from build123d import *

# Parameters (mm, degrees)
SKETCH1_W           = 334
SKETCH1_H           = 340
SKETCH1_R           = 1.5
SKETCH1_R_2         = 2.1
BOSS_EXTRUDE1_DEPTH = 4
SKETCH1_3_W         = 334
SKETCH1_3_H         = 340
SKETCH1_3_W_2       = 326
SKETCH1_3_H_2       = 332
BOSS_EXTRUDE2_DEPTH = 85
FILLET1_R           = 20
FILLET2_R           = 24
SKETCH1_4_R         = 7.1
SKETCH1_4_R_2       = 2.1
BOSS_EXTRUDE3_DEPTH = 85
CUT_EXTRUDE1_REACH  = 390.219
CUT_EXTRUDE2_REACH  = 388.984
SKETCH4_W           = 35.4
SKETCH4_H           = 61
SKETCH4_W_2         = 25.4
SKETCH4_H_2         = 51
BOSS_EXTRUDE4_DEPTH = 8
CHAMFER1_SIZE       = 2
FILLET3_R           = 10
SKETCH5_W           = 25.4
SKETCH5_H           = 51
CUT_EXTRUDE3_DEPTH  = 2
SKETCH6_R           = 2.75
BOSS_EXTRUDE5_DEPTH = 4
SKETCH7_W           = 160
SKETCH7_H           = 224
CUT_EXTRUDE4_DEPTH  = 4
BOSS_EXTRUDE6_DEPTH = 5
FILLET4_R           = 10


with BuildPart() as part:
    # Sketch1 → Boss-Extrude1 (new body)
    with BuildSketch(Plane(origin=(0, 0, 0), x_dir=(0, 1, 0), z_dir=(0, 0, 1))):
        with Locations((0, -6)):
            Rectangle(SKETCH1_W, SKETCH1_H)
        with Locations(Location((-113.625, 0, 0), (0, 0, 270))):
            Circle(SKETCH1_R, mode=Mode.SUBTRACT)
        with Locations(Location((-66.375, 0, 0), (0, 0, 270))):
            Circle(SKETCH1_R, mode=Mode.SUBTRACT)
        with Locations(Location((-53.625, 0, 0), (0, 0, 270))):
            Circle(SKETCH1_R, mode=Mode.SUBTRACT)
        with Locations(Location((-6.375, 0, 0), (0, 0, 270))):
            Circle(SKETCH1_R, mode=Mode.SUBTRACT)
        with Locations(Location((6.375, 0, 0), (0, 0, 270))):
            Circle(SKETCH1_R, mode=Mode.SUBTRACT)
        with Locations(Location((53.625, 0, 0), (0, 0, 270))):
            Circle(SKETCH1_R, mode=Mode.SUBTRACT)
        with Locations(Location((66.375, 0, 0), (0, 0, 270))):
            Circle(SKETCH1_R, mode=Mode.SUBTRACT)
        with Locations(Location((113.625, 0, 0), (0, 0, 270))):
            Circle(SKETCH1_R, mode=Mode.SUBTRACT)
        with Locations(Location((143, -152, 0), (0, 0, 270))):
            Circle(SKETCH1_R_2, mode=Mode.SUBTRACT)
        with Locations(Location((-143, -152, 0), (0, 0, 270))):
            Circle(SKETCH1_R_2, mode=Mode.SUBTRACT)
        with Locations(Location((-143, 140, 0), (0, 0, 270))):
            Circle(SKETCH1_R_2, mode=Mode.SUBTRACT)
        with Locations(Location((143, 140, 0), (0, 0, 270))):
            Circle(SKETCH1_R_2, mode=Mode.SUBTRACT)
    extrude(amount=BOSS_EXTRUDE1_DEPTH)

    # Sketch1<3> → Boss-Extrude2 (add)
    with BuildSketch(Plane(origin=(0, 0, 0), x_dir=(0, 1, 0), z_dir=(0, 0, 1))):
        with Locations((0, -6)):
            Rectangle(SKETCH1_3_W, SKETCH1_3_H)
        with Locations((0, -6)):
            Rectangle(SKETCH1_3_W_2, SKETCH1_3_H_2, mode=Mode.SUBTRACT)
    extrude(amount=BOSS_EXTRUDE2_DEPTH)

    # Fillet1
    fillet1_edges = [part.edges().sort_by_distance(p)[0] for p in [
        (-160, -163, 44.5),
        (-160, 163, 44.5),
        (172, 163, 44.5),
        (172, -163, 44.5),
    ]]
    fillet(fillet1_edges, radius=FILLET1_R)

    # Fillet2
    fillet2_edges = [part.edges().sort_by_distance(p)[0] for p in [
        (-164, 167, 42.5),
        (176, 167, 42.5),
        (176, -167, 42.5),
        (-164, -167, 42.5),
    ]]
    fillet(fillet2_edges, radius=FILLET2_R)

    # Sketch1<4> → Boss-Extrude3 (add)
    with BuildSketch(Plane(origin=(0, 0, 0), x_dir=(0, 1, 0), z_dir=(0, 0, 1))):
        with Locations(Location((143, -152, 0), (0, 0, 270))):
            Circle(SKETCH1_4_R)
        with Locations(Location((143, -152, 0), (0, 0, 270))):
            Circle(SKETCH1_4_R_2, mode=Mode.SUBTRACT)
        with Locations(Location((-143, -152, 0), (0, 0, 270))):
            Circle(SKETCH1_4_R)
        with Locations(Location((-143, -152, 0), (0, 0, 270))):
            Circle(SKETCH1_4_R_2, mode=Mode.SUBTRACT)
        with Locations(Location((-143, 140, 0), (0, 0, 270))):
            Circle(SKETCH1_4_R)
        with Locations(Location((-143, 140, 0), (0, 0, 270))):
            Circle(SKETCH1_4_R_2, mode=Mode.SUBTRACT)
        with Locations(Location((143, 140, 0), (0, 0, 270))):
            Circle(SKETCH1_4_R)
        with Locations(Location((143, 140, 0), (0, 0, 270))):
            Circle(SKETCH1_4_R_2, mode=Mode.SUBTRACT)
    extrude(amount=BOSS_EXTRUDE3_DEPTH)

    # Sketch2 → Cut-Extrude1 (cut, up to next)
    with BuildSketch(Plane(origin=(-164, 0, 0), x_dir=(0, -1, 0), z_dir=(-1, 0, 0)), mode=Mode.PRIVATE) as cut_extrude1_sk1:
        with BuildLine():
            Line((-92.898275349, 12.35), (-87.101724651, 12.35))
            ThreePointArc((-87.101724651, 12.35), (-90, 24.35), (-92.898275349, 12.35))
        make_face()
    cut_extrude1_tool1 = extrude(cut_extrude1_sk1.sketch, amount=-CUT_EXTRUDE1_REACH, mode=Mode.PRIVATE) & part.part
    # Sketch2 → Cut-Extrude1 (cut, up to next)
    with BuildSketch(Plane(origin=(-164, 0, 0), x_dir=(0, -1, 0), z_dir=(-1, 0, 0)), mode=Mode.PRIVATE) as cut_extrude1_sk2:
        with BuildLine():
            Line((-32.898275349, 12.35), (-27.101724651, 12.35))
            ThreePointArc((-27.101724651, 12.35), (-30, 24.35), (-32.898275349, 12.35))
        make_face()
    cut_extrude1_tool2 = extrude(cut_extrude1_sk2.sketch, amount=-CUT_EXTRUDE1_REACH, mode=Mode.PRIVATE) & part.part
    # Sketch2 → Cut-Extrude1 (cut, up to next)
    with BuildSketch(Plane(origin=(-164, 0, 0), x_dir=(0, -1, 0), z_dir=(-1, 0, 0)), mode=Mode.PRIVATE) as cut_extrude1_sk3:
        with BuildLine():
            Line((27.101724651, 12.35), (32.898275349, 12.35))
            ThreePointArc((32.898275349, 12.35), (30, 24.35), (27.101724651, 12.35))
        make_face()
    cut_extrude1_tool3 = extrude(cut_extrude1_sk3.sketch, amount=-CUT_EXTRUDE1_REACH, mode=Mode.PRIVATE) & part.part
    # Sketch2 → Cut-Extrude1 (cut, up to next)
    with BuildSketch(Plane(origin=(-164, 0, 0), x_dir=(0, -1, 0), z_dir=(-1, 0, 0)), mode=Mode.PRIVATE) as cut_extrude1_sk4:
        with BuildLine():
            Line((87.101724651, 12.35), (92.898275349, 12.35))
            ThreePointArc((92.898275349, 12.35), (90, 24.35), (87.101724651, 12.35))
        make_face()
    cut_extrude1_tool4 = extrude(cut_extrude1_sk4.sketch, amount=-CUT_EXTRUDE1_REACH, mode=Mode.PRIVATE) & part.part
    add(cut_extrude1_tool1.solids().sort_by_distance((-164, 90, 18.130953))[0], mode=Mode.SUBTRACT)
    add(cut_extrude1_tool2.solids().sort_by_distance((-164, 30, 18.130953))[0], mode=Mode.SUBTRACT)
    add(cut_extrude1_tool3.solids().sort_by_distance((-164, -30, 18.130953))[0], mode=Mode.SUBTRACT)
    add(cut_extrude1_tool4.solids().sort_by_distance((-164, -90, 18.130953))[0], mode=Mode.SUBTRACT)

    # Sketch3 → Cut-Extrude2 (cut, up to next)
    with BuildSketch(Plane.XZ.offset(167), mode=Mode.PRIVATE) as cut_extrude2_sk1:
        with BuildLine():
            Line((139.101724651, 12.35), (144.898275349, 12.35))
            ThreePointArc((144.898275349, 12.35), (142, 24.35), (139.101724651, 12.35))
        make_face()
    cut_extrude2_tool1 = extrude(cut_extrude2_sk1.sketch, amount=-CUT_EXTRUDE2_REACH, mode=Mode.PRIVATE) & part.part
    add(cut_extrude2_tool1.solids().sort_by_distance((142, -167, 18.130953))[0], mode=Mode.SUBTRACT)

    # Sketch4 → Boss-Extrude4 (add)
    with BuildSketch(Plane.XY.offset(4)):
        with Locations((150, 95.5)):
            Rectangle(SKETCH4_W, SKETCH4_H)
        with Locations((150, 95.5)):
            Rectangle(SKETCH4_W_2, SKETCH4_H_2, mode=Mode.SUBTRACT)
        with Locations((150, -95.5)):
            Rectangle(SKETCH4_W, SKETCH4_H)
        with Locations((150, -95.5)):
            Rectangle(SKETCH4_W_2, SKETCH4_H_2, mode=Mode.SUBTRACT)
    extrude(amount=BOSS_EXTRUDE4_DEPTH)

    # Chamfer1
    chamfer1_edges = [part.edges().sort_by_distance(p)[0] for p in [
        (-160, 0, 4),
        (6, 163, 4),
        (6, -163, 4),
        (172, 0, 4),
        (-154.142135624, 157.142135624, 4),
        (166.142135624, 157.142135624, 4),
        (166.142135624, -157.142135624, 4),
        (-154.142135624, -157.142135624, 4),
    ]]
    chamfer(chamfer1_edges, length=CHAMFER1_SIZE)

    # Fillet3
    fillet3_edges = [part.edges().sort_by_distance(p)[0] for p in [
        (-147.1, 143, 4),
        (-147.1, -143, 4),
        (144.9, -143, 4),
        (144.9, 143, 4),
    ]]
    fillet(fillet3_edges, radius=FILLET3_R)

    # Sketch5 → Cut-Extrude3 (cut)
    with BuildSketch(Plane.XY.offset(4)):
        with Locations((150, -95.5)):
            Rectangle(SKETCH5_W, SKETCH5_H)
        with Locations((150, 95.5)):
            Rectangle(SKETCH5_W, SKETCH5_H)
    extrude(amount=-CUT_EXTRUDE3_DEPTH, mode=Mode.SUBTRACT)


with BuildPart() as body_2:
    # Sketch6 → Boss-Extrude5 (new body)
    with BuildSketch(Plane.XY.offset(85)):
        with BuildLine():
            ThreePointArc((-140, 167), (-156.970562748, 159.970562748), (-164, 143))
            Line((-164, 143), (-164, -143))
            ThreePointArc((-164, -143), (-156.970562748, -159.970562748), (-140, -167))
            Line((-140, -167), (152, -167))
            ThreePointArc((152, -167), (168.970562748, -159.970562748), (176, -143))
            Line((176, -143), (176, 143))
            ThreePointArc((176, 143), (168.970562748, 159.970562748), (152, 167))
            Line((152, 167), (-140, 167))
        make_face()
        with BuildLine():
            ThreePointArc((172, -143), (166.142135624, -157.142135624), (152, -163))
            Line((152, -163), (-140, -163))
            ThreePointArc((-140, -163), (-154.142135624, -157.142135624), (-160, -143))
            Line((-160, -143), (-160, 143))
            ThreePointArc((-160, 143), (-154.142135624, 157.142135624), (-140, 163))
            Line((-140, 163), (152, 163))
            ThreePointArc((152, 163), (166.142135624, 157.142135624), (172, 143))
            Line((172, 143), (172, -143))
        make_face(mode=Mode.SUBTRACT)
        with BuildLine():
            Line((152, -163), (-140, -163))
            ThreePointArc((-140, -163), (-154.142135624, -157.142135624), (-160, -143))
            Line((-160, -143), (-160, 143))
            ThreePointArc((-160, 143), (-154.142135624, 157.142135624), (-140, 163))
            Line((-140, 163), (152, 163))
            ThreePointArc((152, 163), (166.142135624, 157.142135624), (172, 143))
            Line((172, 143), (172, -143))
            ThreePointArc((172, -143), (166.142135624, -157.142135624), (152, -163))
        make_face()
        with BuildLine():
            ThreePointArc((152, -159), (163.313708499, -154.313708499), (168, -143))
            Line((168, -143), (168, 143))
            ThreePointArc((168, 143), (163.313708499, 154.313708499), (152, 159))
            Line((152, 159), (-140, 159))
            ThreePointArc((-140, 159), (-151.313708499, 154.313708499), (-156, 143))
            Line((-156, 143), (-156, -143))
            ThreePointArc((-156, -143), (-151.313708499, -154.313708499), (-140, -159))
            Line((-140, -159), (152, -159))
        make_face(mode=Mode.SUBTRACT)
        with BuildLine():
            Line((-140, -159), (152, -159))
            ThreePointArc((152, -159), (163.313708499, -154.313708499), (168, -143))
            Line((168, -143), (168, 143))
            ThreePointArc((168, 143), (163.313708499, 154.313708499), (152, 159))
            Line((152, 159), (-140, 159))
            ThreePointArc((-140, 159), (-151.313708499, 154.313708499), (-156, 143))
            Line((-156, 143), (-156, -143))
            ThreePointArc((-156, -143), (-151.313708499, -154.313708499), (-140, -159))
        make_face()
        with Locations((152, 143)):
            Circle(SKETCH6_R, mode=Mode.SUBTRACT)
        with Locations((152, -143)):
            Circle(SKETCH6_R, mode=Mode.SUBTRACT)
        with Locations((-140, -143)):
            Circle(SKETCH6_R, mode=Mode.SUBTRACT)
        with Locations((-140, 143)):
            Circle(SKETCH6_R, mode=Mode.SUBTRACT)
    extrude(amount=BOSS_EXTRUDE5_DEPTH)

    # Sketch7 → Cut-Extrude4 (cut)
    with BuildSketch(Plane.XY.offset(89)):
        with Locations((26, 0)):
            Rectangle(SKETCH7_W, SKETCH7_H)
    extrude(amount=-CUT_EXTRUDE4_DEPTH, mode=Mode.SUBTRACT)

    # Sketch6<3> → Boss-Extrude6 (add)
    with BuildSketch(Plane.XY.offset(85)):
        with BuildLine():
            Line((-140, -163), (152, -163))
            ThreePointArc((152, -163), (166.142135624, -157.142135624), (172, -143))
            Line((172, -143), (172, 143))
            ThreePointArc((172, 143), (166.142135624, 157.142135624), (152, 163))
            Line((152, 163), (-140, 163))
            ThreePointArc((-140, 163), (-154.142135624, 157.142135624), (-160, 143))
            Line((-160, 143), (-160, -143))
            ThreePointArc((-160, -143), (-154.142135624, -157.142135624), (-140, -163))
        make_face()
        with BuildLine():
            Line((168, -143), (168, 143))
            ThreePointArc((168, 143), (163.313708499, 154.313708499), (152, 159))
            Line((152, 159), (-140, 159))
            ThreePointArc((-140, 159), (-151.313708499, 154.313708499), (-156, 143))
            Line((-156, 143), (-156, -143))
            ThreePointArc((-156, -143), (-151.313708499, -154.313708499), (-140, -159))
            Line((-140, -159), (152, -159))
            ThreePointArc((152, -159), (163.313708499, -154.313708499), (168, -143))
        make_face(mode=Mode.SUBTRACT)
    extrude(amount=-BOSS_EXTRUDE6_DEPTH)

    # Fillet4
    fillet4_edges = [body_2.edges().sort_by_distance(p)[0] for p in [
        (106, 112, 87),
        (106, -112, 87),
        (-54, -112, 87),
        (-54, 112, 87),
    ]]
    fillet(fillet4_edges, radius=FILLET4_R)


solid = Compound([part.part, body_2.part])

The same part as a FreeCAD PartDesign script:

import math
import FreeCAD as App
import Part
import Sketcher


def edges_at(feature, points):
    """Names of the edges that pass closest to the given points."""
    edges = feature.Shape.Edges
    near = lambda p: min(range(len(edges)), key=lambda i: edges[i].distToShape(Part.Vertex(*p))[0])
    return sorted({f"Edge{near(p) + 1}" for p in points})


def add_polygon(sketch, points):
    """Adds a closed chain of lines whose ends are joined by coincident constraints."""
    first, n = sketch.GeometryCount, len(points)
    for a, b in zip(points, points[1:] + points[:1]):
        sketch.addGeometry(Part.LineSegment(App.Vector(*a, 0), App.Vector(*b, 0)), False)
    for i in range(n):
        sketch.addConstraint(Sketcher.Constraint("Coincident", first + i, 2, first + (i + 1) % n, 1))

doc = App.newDocument("Part")
body = doc.addObject("PartDesign::Body", "Body")

sketch1 = body.newObject("Sketcher::SketchObject", "Sketch")
sketch1.AttachmentSupport = (doc.getObject("XY_Plane"), [""])
sketch1.MapMode = "FlatFace"
add_polygon(sketch1, [(-164, -167), (176, -167), (176, 167), (-164, 167)])
sketch1.addGeometry(Part.Circle(App.Vector(152, -143, 0), App.Vector(0, 0, 1), 2.1), False)
sketch1.addGeometry(Part.Circle(App.Vector(152, 143, 0), App.Vector(0, 0, 1), 2.1), False)
sketch1.addGeometry(Part.Circle(App.Vector(0, -113.6, 0), App.Vector(0, 0, 1), 1.5), False)
sketch1.addGeometry(Part.Circle(App.Vector(0, -66.4, 0), App.Vector(0, 0, 1), 1.5), False)
sketch1.addGeometry(Part.Circle(App.Vector(0, -53.6, 0), App.Vector(0, 0, 1), 1.5), False)
sketch1.addGeometry(Part.Circle(App.Vector(0, -6.4, 0), App.Vector(0, 0, 1), 1.5), False)
sketch1.addGeometry(Part.Circle(App.Vector(-140, -143, 0), App.Vector(0, 0, 1), 2.1), False)
sketch1.addGeometry(Part.Circle(App.Vector(0, 6.4, 0), App.Vector(0, 0, 1), 1.5), False)
sketch1.addGeometry(Part.Circle(App.Vector(0, 53.6, 0), App.Vector(0, 0, 1), 1.5), False)
sketch1.addGeometry(Part.Circle(App.Vector(0, 66.4, 0), App.Vector(0, 0, 1), 1.5), False)
sketch1.addGeometry(Part.Circle(App.Vector(0, 113.6, 0), App.Vector(0, 0, 1), 1.5), False)
sketch1.addGeometry(Part.Circle(App.Vector(-140, 143, 0), App.Vector(0, 0, 1), 2.1), False)
sketch1.addConstraint([
    Sketcher.Constraint("Horizontal", 0),
    Sketcher.Constraint("Vertical", 1),
    Sketcher.Constraint("Horizontal", 2),
    Sketcher.Constraint("Vertical", 3),
    Sketcher.Constraint("Equal", 4, 5),
    Sketcher.Constraint("Equal", 6, 7),
    Sketcher.Constraint("Equal", 7, 8),
    Sketcher.Constraint("Equal", 8, 9),
    Sketcher.Constraint("Equal", 5, 10),
    Sketcher.Constraint("Equal", 9, 11),
    Sketcher.Constraint("Equal", 11, 12),
    Sketcher.Constraint("Equal", 12, 13),
    Sketcher.Constraint("Equal", 13, 14),
    Sketcher.Constraint("Equal", 10, 15),
    Sketcher.Constraint("Symmetric", 9, 3, 11, 3, -1, 1),
    Sketcher.Constraint("Symmetric", 8, 3, 12, 3, -1, 1),
    Sketcher.Constraint("Symmetric", 7, 3, 13, 3, -1, 1),
    Sketcher.Constraint("Symmetric", 6, 3, 14, 3, -1, 1),
    Sketcher.Constraint("Symmetric", 4, 3, 5, 3, -1),
    Sketcher.Constraint("Symmetric", 10, 3, 15, 3, -1),
    Sketcher.Constraint("PointOnObject", 6, 3, -2),
    Sketcher.Constraint("PointOnObject", 7, 3, -2),
    Sketcher.Constraint("PointOnObject", 8, 3, -2),
    Sketcher.Constraint("PointOnObject", 9, 3, -2),
    Sketcher.Constraint("Horizontal", 4, 3, 10, 3),
    Sketcher.Constraint("Diameter", 6, 3.0),
    Sketcher.Constraint("Diameter", 4, 4.2),
    Sketcher.Constraint("DistanceX", 0, 1, 0, 2, 340.0),
    Sketcher.Constraint("DistanceY", 1, 1, 1, 2, 334.0),
    Sketcher.Constraint("DistanceX", -1, 1, 4, 3, 152.0),
    Sketcher.Constraint("DistanceY", 4, 3, -1, 1, 143.0),
    Sketcher.Constraint("DistanceX", 10, 3, -1, 1, 140.0),
    Sketcher.Constraint("DistanceX", -1, 1, 0, 2, 176.0),
    Sketcher.Constraint("DistanceY", 0, 2, -1, 1, 167.0),
    Sketcher.Constraint("DistanceY", 6, 3, 8, 3, 60.0),
    Sketcher.Constraint("DistanceY", 7, 3, 9, 3, 60.0),
    Sketcher.Constraint("DistanceY", 8, 3, 11, 3, 60.0),
    Sketcher.Constraint("DistanceY", 6, 3, 7, 3, 47.25),
])
pad1 = body.newObject("PartDesign::Pad", "Pad")
pad1.Profile = sketch1
pad1.Length = 4

sketch2 = body.newObject("Sketcher::SketchObject", "Sketch001")
sketch2.AttachmentSupport = (doc.getObject("XY_Plane"), [""])
sketch2.MapMode = "FlatFace"
add_polygon(sketch2, [(-164, -167), (176, -167), (176, 167), (-164, 167)])
add_polygon(sketch2, [(172, 163), (172, -163), (-160, -163), (-160, 163)])
sketch2.addConstraint([
    Sketcher.Constraint("Horizontal", 0),
    Sketcher.Constraint("Vertical", 1),
    Sketcher.Constraint("Horizontal", 2),
    Sketcher.Constraint("Vertical", 3),
    Sketcher.Constraint("Vertical", 4),
    Sketcher.Constraint("Horizontal", 5),
    Sketcher.Constraint("Vertical", 6),
    Sketcher.Constraint("Horizontal", 7),
    Sketcher.Constraint("DistanceX", 0, 1, 0, 2, 340.0),
    Sketcher.Constraint("DistanceX", 5, 2, 5, 1, 332.0),
    Sketcher.Constraint("DistanceY", 1, 1, 1, 2, 334.0),
    Sketcher.Constraint("DistanceY", 4, 2, 4, 1, 326.0),
    Sketcher.Constraint("DistanceX", -1, 1, 0, 2, 176.0),
    Sketcher.Constraint("DistanceY", 0, 2, -1, 1, 167.0),
    Sketcher.Constraint("DistanceX", -1, 1, 4, 2, 172.0),
    Sketcher.Constraint("DistanceY", 4, 2, -1, 1, 163.0),
])
pad2 = body.newObject("PartDesign::Pad", "Pad001")
pad2.Profile = sketch2
pad2.Length = 85
doc.recompute()

fillet = body.newObject("PartDesign::Fillet", "Fillet")
fillet.Base = (pad2, edges_at(pad2, [
    (-160, -163, 44.5),
    (-160, 163, 44.5),
    (172, 163, 44.5),
    (172, -163, 44.5),
]))
fillet.Radius = 20
doc.recompute()

fillet2 = body.newObject("PartDesign::Fillet", "Fillet001")
fillet2.Base = (fillet, edges_at(fillet, [
    (-164, 167, 42.5),
    (176, 167, 42.5),
    (176, -167, 42.5),
    (-164, -167, 42.5),
]))
fillet2.Radius = 24

sketch3 = body.newObject("Sketcher::SketchObject", "Sketch002")
sketch3.AttachmentSupport = (doc.getObject("XY_Plane"), [""])
sketch3.MapMode = "FlatFace"
sketch3.addGeometry([
    Part.Circle(App.Vector(152, 143, 0), App.Vector(0, 0, 1), 7.1),
    Part.Circle(App.Vector(152, 143, 0), App.Vector(0, 0, 1), 2.1),
    Part.Circle(App.Vector(152, -143, 0), App.Vector(0, 0, 1), 7.1),
    Part.Circle(App.Vector(152, -143, 0), App.Vector(0, 0, 1), 2.1),
    Part.Circle(App.Vector(-140, -143, 0), App.Vector(0, 0, 1), 7.1),
    Part.Circle(App.Vector(-140, -143, 0), App.Vector(0, 0, 1), 2.1),
    Part.Circle(App.Vector(-140, 143, 0), App.Vector(0, 0, 1), 7.1),
    Part.Circle(App.Vector(-140, 143, 0), App.Vector(0, 0, 1), 2.1),
], False)
sketch3.addConstraint([
    Sketcher.Constraint("Coincident", 1, 3, 0, 3),
    Sketcher.Constraint("Coincident", 3, 3, 2, 3),
    Sketcher.Constraint("Coincident", 5, 3, 4, 3),
    Sketcher.Constraint("Coincident", 7, 3, 6, 3),
    Sketcher.Constraint("Equal", 0, 2),
    Sketcher.Constraint("Equal", 1, 3),
    Sketcher.Constraint("Equal", 2, 4),
    Sketcher.Constraint("Equal", 3, 5),
    Sketcher.Constraint("Equal", 4, 6),
    Sketcher.Constraint("Equal", 5, 7),
    Sketcher.Constraint("Symmetric", 0, 3, 2, 3, -1),
    Sketcher.Constraint("Symmetric", 4, 3, 6, 3, -1),
    Sketcher.Constraint("Horizontal", 3, 3, 4, 3),
    Sketcher.Constraint("Diameter", 0, 14.2),
    Sketcher.Constraint("Diameter", 1, 4.2),
    Sketcher.Constraint("DistanceX", -1, 1, 0, 3, 152.0),
    Sketcher.Constraint("DistanceY", -1, 1, 0, 3, 143.0),
    Sketcher.Constraint("DistanceX", 4, 3, -1, 1, 140.0),
])
pad3 = body.newObject("PartDesign::Pad", "Pad002")
pad3.Profile = sketch3
pad3.Length = 85

sketch4 = body.newObject("Sketcher::SketchObject", "Sketch003")
sketch4.AttachmentSupport = (doc.getObject("YZ_Plane"), [""])
sketch4.MapMode = "FlatFace"
sketch4.AttachmentOffset = App.Placement(App.Vector(0, 0, -164), App.Rotation())
sketch4.addGeometry([
    Part.LineSegment(App.Vector(93, 12, 0), App.Vector(87, 12, 0)),
    Part.ArcOfCircle(Part.Circle(App.Vector(90, 18, 0), App.Vector(0, 0, 1), 6), math.radians(-63), math.radians(243)),
], False)
sketch4.addConstraint([
    Sketcher.Constraint("Coincident", 0, 1, 1, 1),
    Sketcher.Constraint("Coincident", 1, 2, 0, 2),
    Sketcher.Constraint("Horizontal", 0),
    Sketcher.Constraint("Radius", 1, 6.35),
    Sketcher.Constraint("DistanceX", -1, 1, 1, 3, 90.0),
    Sketcher.Constraint("DistanceY", -1, 1, 1, 3, 18.0),
    Sketcher.Constraint("DistanceY", -1, 1, 0, 1, 12.35),
])
pocket1 = body.newObject("PartDesign::Pocket", "Pocket")
pocket1.Profile = sketch4
pocket1.Type = "UpToFirst"
pocket1.Reversed = True

sketch5 = body.newObject("Sketcher::SketchObject", "Sketch004")
sketch5.AttachmentSupport = (doc.getObject("YZ_Plane"), [""])
sketch5.MapMode = "FlatFace"
sketch5.AttachmentOffset = App.Placement(App.Vector(0, 0, -164), App.Rotation())
sketch5.addGeometry([
    Part.LineSegment(App.Vector(33, 12, 0), App.Vector(27, 12, 0)),
    Part.ArcOfCircle(Part.Circle(App.Vector(30, 18, 0), App.Vector(0, 0, 1), 6), math.radians(-63), math.radians(243)),
], False)
sketch5.addConstraint([
    Sketcher.Constraint("Coincident", 0, 1, 1, 1),
    Sketcher.Constraint("Coincident", 1, 2, 0, 2),
    Sketcher.Constraint("Horizontal", 0),
    Sketcher.Constraint("Radius", 1, 6.35),
    Sketcher.Constraint("DistanceX", -1, 1, 1, 3, 30.0),
    Sketcher.Constraint("DistanceY", -1, 1, 1, 3, 18.0),
    Sketcher.Constraint("DistanceY", -1, 1, 0, 1, 12.35),
])
pocket2 = body.newObject("PartDesign::Pocket", "Pocket001")
pocket2.Profile = sketch5
pocket2.Type = "UpToFirst"
pocket2.Reversed = True

sketch6 = body.newObject("Sketcher::SketchObject", "Sketch005")
sketch6.AttachmentSupport = (doc.getObject("YZ_Plane"), [""])
sketch6.MapMode = "FlatFace"
sketch6.AttachmentOffset = App.Placement(App.Vector(0, 0, -164), App.Rotation())
sketch6.addGeometry([
    Part.LineSegment(App.Vector(-27, 12, 0), App.Vector(-33, 12, 0)),
    Part.ArcOfCircle(Part.Circle(App.Vector(-30, 18, 0), App.Vector(0, 0, 1), 6), math.radians(-63), math.radians(243)),
], False)
sketch6.addConstraint([
    Sketcher.Constraint("Coincident", 0, 1, 1, 1),
    Sketcher.Constraint("Coincident", 1, 2, 0, 2),
    Sketcher.Constraint("Horizontal", 0),
    Sketcher.Constraint("Radius", 1, 6.35),
    Sketcher.Constraint("DistanceX", 1, 3, -1, 1, 30.0),
    Sketcher.Constraint("DistanceY", -1, 1, 1, 3, 18.0),
    Sketcher.Constraint("DistanceY", -1, 1, 0, 1, 12.35),
])
pocket3 = body.newObject("PartDesign::Pocket", "Pocket002")
pocket3.Profile = sketch6
pocket3.Type = "UpToFirst"
pocket3.Reversed = True

sketch7 = body.newObject("Sketcher::SketchObject", "Sketch006")
sketch7.AttachmentSupport = (doc.getObject("YZ_Plane"), [""])
sketch7.MapMode = "FlatFace"
sketch7.AttachmentOffset = App.Placement(App.Vector(0, 0, -164), App.Rotation())
sketch7.addGeometry([
    Part.LineSegment(App.Vector(-87, 12, 0), App.Vector(-93, 12, 0)),
    Part.ArcOfCircle(Part.Circle(App.Vector(-90, 18, 0), App.Vector(0, 0, 1), 6), math.radians(-63), math.radians(243)),
], False)
sketch7.addConstraint([
    Sketcher.Constraint("Coincident", 0, 1, 1, 1),
    Sketcher.Constraint("Coincident", 1, 2, 0, 2),
    Sketcher.Constraint("Horizontal", 0),
    Sketcher.Constraint("Radius", 1, 6.35),
    Sketcher.Constraint("DistanceX", 1, 3, -1, 1, 90.0),
    Sketcher.Constraint("DistanceY", -1, 1, 1, 3, 18.0),
    Sketcher.Constraint("DistanceY", -1, 1, 0, 1, 12.35),
])
pocket4 = body.newObject("PartDesign::Pocket", "Pocket003")
pocket4.Profile = sketch7
pocket4.Type = "UpToFirst"
pocket4.Reversed = True

sketch8 = body.newObject("Sketcher::SketchObject", "Sketch007")
sketch8.AttachmentSupport = (doc.getObject("XZ_Plane"), [""])
sketch8.MapMode = "FlatFace"
sketch8.AttachmentOffset = App.Placement(App.Vector(0, 0, 167), App.Rotation())
sketch8.addGeometry([
    Part.LineSegment(App.Vector(139, 12, 0), App.Vector(145, 12, 0)),
    Part.ArcOfCircle(Part.Circle(App.Vector(142, 18, 0), App.Vector(0, 0, 1), 6), math.radians(-63), math.radians(243)),
], False)
sketch8.addConstraint([
    Sketcher.Constraint("Coincident", 0, 1, 1, 2),
    Sketcher.Constraint("Coincident", 1, 1, 0, 2),
    Sketcher.Constraint("Horizontal", 0),
    Sketcher.Constraint("Radius", 1, 6.35),
    Sketcher.Constraint("DistanceX", -1, 1, 1, 3, 142.0),
    Sketcher.Constraint("DistanceY", -1, 1, 1, 3, 18.0),
    Sketcher.Constraint("DistanceY", -1, 1, 0, 1, 12.35),
])
pocket5 = body.newObject("PartDesign::Pocket", "Pocket004")
pocket5.Profile = sketch8
pocket5.Type = "UpToFirst"

sketch9 = body.newObject("Sketcher::SketchObject", "Sketch008")
sketch9.AttachmentSupport = (doc.getObject("XY_Plane"), [""])
sketch9.MapMode = "FlatFace"
sketch9.AttachmentOffset = App.Placement(App.Vector(0, 0, 4), App.Rotation())
add_polygon(sketch9, [(132, 126), (132, 65), (168, 65), (168, 126)])
add_polygon(sketch9, [(163, 70), (137, 70), (137, 121), (163, 121)])
add_polygon(sketch9, [(132, -65), (132, -126), (168, -126), (168, -65)])
add_polygon(sketch9, [(163, -121), (137, -121), (137, -70), (163, -70)])
sketch9.addConstraint([
    Sketcher.Constraint("Vertical", 0),
    Sketcher.Constraint("Horizontal", 1),
    Sketcher.Constraint("Vertical", 2),
    Sketcher.Constraint("Horizontal", 3),
    Sketcher.Constraint("Horizontal", 4),
    Sketcher.Constraint("Vertical", 5),
    Sketcher.Constraint("Horizontal", 6),
    Sketcher.Constraint("Vertical", 7),
    Sketcher.Constraint("Vertical", 8),
    Sketcher.Constraint("Horizontal", 9),
    Sketcher.Constraint("Vertical", 10),
    Sketcher.Constraint("Horizontal", 11),
    Sketcher.Constraint("Horizontal", 12),
    Sketcher.Constraint("Vertical", 13),
    Sketcher.Constraint("Horizontal", 14),
    Sketcher.Constraint("Vertical", 15),
    Sketcher.Constraint("Symmetric", 3, 2, 8, 2, -1),
    Sketcher.Constraint("Symmetric", 1, 2, 10, 2, -1),
    Sketcher.Constraint("Symmetric", 5, 2, 12, 2, -1),
    Sketcher.Constraint("Symmetric", 7, 2, 14, 2, -1),
    Sketcher.Constraint("DistanceY", 0, 2, 0, 1, 61.0),
    Sketcher.Constraint("DistanceY", 5, 1, 5, 2, 51.0),
    Sketcher.Constraint("DistanceX", 1, 1, 1, 2, 35.4),
    Sketcher.Constraint("DistanceX", 4, 2, 4, 1, 25.4),
    Sketcher.Constraint("DistanceY", -1, 1, 0, 2, 65.0),
    Sketcher.Constraint("DistanceY", -1, 1, 4, 2, 70.0),
    Sketcher.Constraint("DistanceX", 0, 2, 4, 2, 5.0),
    Sketcher.Constraint("DistanceX", -1, 1, 0, 2, 132.3),
])
pad4 = body.newObject("PartDesign::Pad", "Pad003")
pad4.Profile = sketch9
pad4.Length = 8
doc.recompute()

chamfer = body.newObject("PartDesign::Chamfer", "Chamfer")
chamfer.Base = (pad4, edges_at(pad4, [
    (-160, 0, 4),
    (6, 163, 4),
    (6, -163, 4),
    (172, 0, 4),
    (-154.142, 157.142, 4),
    (166.142, 157.142, 4),
    (166.142, -157.142, 4),
    (-154.142, -157.142, 4),
]))
chamfer.Size = 2
doc.recompute()

fillet3 = body.newObject("PartDesign::Fillet", "Fillet002")
fillet3.Base = (chamfer, edges_at(chamfer, [
    (-147.1, 143, 4),
    (-147.1, -143, 4),
    (144.9, -143, 4),
    (144.9, 143, 4),
]))
fillet3.Radius = 10

sketch10 = body.newObject("Sketcher::SketchObject", "Sketch009")
sketch10.AttachmentSupport = (doc.getObject("XY_Plane"), [""])
sketch10.MapMode = "FlatFace"
sketch10.AttachmentOffset = App.Placement(App.Vector(0, 0, 4), App.Rotation())
add_polygon(sketch10, [(137, -70), (137, -121), (163, -121), (163, -70)])
add_polygon(sketch10, [(137, 121), (137, 70), (163, 70), (163, 121)])
sketch10.addConstraint([
    Sketcher.Constraint("Vertical", 0),
    Sketcher.Constraint("Horizontal", 1),
    Sketcher.Constraint("Vertical", 2),
    Sketcher.Constraint("Horizontal", 3),
    Sketcher.Constraint("Vertical", 4),
    Sketcher.Constraint("Horizontal", 5),
    Sketcher.Constraint("Vertical", 6),
    Sketcher.Constraint("Horizontal", 7),
    Sketcher.Constraint("Symmetric", 3, 2, 4, 2, -1),
    Sketcher.Constraint("Symmetric", 1, 2, 6, 2, -1),
    Sketcher.Constraint("DistanceY", 0, 2, 0, 1, 51.0),
    Sketcher.Constraint("DistanceX", 1, 1, 1, 2, 25.4),
    Sketcher.Constraint("DistanceY", 0, 2, -1, 1, 121.0),
    Sketcher.Constraint("DistanceX", -1, 1, 0, 2, 137.3),
])
pocket6 = body.newObject("PartDesign::Pocket", "Pocket005")
pocket6.Profile = sketch10
pocket6.Length = 2
body2 = doc.addObject("PartDesign::Body", "Body001")

sketch11 = body2.newObject("Sketcher::SketchObject", "Sketch010")
sketch11.AttachmentSupport = (doc.getObject("XY_Plane001"), [""])
sketch11.MapMode = "FlatFace"
sketch11.AttachmentOffset = App.Placement(App.Vector(0, 0, 85), App.Rotation())
sketch11.addGeometry([
    Part.ArcOfCircle(Part.Circle(App.Vector(-140, 143, 0), App.Vector(0, 0, 1), 24), math.radians(90), math.radians(180)),
    Part.LineSegment(App.Vector(-164, 143, 0), App.Vector(-164, -143, 0)),
    Part.ArcOfCircle(Part.Circle(App.Vector(-140, -143, 0), App.Vector(0, 0, 1), 24), math.radians(-180), math.radians(-90)),
    Part.LineSegment(App.Vector(-140, -167, 0), App.Vector(152, -167, 0)),
    Part.ArcOfCircle(Part.Circle(App.Vector(152, -143, 0), App.Vector(0, 0, 1), 24), math.radians(-90), math.radians(0)),
    Part.LineSegment(App.Vector(176, -143, 0), App.Vector(176, 143, 0)),
    Part.ArcOfCircle(Part.Circle(App.Vector(152, 143, 0), App.Vector(0, 0, 1), 24), math.radians(0), math.radians(90)),
    Part.LineSegment(App.Vector(152, 167, 0), App.Vector(-140, 167, 0)),
    Part.Circle(App.Vector(-140, -143, 0), App.Vector(0, 0, 1), 2.8),
    Part.Circle(App.Vector(152, -143, 0), App.Vector(0, 0, 1), 2.8),
    Part.Circle(App.Vector(-140, 143, 0), App.Vector(0, 0, 1), 2.8),
    Part.Circle(App.Vector(152, 143, 0), App.Vector(0, 0, 1), 2.8),
], False)
sketch11.addConstraint([
    Sketcher.Constraint("Tangent", 0, 2, 1, 1),
    Sketcher.Constraint("Tangent", 1, 2, 2, 1),
    Sketcher.Constraint("Tangent", 2, 2, 3, 1),
    Sketcher.Constraint("Tangent", 3, 2, 4, 1),
    Sketcher.Constraint("Tangent", 4, 2, 5, 1),
    Sketcher.Constraint("Tangent", 5, 2, 6, 1),
    Sketcher.Constraint("Tangent", 6, 2, 7, 1),
    Sketcher.Constraint("Tangent", 7, 2, 0, 1),
    Sketcher.Constraint("Vertical", 1),
    Sketcher.Constraint("Horizontal", 3),
    Sketcher.Constraint("Vertical", 5),
    Sketcher.Constraint("Horizontal", 7),
    Sketcher.Constraint("Coincident", 8, 3, 2, 3),
    Sketcher.Constraint("Coincident", 9, 3, 4, 3),
    Sketcher.Constraint("Coincident", 10, 3, 0, 3),
    Sketcher.Constraint("Coincident", 11, 3, 6, 3),
    Sketcher.Constraint("Equal", 0, 2),
    Sketcher.Constraint("Equal", 2, 4),
    Sketcher.Constraint("Equal", 4, 6),
    Sketcher.Constraint("Equal", 8, 9),
    Sketcher.Constraint("Equal", 9, 10),
    Sketcher.Constraint("Equal", 10, 11),
    Sketcher.Constraint("Radius", 0, 24.0),
    Sketcher.Constraint("Diameter", 8, 5.5),
    Sketcher.Constraint("DistanceX", 3, 1, 3, 2, 292.0),
    Sketcher.Constraint("DistanceY", 1, 2, 1, 1, 286.0),
    Sketcher.Constraint("DistanceX", 0, 3, -1, 1, 140.0),
    Sketcher.Constraint("DistanceY", -1, 1, 0, 3, 143.0),
])
pad5 = body2.newObject("PartDesign::Pad", "Pad004")
pad5.Profile = sketch11
pad5.Length = 4

sketch12 = body2.newObject("Sketcher::SketchObject", "Sketch011")
sketch12.AttachmentSupport = (doc.getObject("XY_Plane001"), [""])
sketch12.MapMode = "FlatFace"
sketch12.AttachmentOffset = App.Placement(App.Vector(0, 0, 89), App.Rotation())
add_polygon(sketch12, [(-54, 112), (-54, -112), (106, -112), (106, 112)])
sketch12.addConstraint([
    Sketcher.Constraint("Vertical", 0),
    Sketcher.Constraint("Horizontal", 1),
    Sketcher.Constraint("Vertical", 2),
    Sketcher.Constraint("Horizontal", 3),
    Sketcher.Constraint("DistanceX", 1, 1, 1, 2, 160.0),
    Sketcher.Constraint("DistanceY", 0, 2, 0, 1, 224.0),
    Sketcher.Constraint("DistanceX", 0, 2, -1, 1, 54.0),
    Sketcher.Constraint("DistanceY", 0, 2, -1, 1, 112.0),
])
pocket7 = body2.newObject("PartDesign::Pocket", "Pocket006")
pocket7.Profile = sketch12
pocket7.Length = 4

sketch13 = body2.newObject("Sketcher::SketchObject", "Sketch012")
sketch13.AttachmentSupport = (doc.getObject("XY_Plane001"), [""])
sketch13.MapMode = "FlatFace"
sketch13.AttachmentOffset = App.Placement(App.Vector(0, 0, 85), App.Rotation())
sketch13.addGeometry([
    Part.LineSegment(App.Vector(-140, -163, 0), App.Vector(152, -163, 0)),
    Part.ArcOfCircle(Part.Circle(App.Vector(152, -143, 0), App.Vector(0, 0, 1), 20), math.radians(-90), math.radians(0)),
    Part.LineSegment(App.Vector(172, -143, 0), App.Vector(172, 143, 0)),
    Part.ArcOfCircle(Part.Circle(App.Vector(152, 143, 0), App.Vector(0, 0, 1), 20), math.radians(0), math.radians(90)),
    Part.LineSegment(App.Vector(152, 163, 0), App.Vector(-140, 163, 0)),
    Part.ArcOfCircle(Part.Circle(App.Vector(-140, 143, 0), App.Vector(0, 0, 1), 20), math.radians(90), math.radians(180)),
    Part.LineSegment(App.Vector(-160, 143, 0), App.Vector(-160, -143, 0)),
    Part.ArcOfCircle(Part.Circle(App.Vector(-140, -143, 0), App.Vector(0, 0, 1), 20), math.radians(180), math.radians(270)),
    Part.LineSegment(App.Vector(168, 143, 0), App.Vector(168, -143, 0)),
    Part.ArcOfCircle(Part.Circle(App.Vector(152, -143, 0), App.Vector(0, 0, 1), 16), math.radians(-90), math.radians(0)),
    Part.LineSegment(App.Vector(152, -159, 0), App.Vector(-140, -159, 0)),
    Part.ArcOfCircle(Part.Circle(App.Vector(-140, -143, 0), App.Vector(0, 0, 1), 16), math.radians(180), math.radians(270)),
    Part.LineSegment(App.Vector(-156, -143, 0), App.Vector(-156, 143, 0)),
    Part.ArcOfCircle(Part.Circle(App.Vector(-140, 143, 0), App.Vector(0, 0, 1), 16), math.radians(90), math.radians(180)),
    Part.LineSegment(App.Vector(-140, 159, 0), App.Vector(152, 159, 0)),
    Part.ArcOfCircle(Part.Circle(App.Vector(152, 143, 0), App.Vector(0, 0, 1), 16), math.radians(0), math.radians(90)),
], False)
sketch13.addConstraint([
    Sketcher.Constraint("Tangent", 0, 2, 1, 1),
    Sketcher.Constraint("Tangent", 1, 2, 2, 1),
    Sketcher.Constraint("Tangent", 2, 2, 3, 1),
    Sketcher.Constraint("Tangent", 3, 2, 4, 1),
    Sketcher.Constraint("Tangent", 4, 2, 5, 1),
    Sketcher.Constraint("Tangent", 5, 2, 6, 1),
    Sketcher.Constraint("Tangent", 6, 2, 7, 1),
    Sketcher.Constraint("Tangent", 7, 2, 0, 1),
    Sketcher.Constraint("Tangent", 8, 2, 9, 2),
    Sketcher.Constraint("Tangent", 9, 1, 10, 1),
    Sketcher.Constraint("Tangent", 10, 2, 11, 2),
    Sketcher.Constraint("Tangent", 11, 1, 12, 1),
    Sketcher.Constraint("Tangent", 12, 2, 13, 2),
    Sketcher.Constraint("Tangent", 13, 1, 14, 1),
    Sketcher.Constraint("Tangent", 14, 2, 15, 2),
    Sketcher.Constraint("Tangent", 15, 1, 8, 1),
    Sketcher.Constraint("Horizontal", 0),
    Sketcher.Constraint("Vertical", 2),
    Sketcher.Constraint("Horizontal", 4),
    Sketcher.Constraint("Vertical", 6),
    Sketcher.Constraint("Vertical", 8),
    Sketcher.Constraint("Horizontal", 10),
    Sketcher.Constraint("Vertical", 12),
    Sketcher.Constraint("Horizontal", 14),
    Sketcher.Constraint("Coincident", 9, 3, 1, 3),
    Sketcher.Constraint("Coincident", 11, 3, 7, 3),
    Sketcher.Constraint("Coincident", 13, 3, 5, 3),
    Sketcher.Constraint("Equal", 1, 3),
    Sketcher.Constraint("Equal", 3, 5),
    Sketcher.Constraint("Equal", 5, 7),
    Sketcher.Constraint("Equal", 13, 15),
    Sketcher.Constraint("Radius", 1, 20.0),
    Sketcher.Constraint("Radius", 9, 16.0),
    Sketcher.Constraint("DistanceX", 0, 1, 0, 2, 292.0),
    Sketcher.Constraint("DistanceY", 2, 1, 2, 2, 286.0),
    Sketcher.Constraint("DistanceX", -1, 1, 1, 3, 152.0),
    Sketcher.Constraint("DistanceY", 1, 3, -1, 1, 143.0),
])
pad6 = body2.newObject("PartDesign::Pad", "Pad005")
pad6.Profile = sketch13
pad6.Length = 5
pad6.Reversed = True
doc.recompute()

fillet4 = body2.newObject("PartDesign::Fillet", "Fillet003")
fillet4.Base = (pad6, edges_at(pad6, [
    (106, 112, 87),
    (106, -112, 87),
    (-54, -112, 87),
    (-54, 112, 87),
]))
fillet4.Radius = 10

doc.recompute()
